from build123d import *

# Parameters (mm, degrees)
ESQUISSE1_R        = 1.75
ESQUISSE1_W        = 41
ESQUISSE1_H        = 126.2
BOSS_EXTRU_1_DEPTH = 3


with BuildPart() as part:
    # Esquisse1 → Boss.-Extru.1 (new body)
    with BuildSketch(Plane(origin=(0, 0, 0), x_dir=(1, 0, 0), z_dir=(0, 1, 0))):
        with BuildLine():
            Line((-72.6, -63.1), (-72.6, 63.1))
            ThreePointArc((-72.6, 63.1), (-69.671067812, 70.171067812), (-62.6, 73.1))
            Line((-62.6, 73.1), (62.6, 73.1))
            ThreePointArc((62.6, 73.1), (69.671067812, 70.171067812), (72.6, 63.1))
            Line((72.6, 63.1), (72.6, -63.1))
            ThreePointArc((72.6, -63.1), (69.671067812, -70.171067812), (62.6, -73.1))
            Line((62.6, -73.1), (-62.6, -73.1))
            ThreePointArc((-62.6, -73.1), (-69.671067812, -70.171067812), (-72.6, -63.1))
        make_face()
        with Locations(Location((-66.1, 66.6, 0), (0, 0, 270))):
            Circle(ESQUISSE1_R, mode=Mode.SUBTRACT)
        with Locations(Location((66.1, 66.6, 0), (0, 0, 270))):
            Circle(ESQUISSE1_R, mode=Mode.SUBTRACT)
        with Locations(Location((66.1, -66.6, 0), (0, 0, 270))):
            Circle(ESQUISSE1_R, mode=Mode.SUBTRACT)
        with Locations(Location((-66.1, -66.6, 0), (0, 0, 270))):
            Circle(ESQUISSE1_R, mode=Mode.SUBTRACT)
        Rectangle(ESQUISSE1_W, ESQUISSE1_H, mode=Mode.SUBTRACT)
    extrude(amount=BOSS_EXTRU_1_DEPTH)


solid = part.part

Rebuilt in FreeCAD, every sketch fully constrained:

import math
import FreeCAD as App
import Part
import Sketcher

V = App.Vector

doc = App.newDocument("Part")
body = doc.addObject("PartDesign::Body", "Body")

sketch1 = body.newObject("Sketcher::SketchObject", "Sketch")
sketch1.AttachmentSupport = (doc.getObject("XZ_Plane"), [""])
sketch1.MapMode = "FlatFace"
sketch1.addGeometry(Part.LineSegment(V(-72.6, -63.1, 0), V(-72.6, 63.1, 0)), False)
sketch1.addGeometry(Part.ArcOfCircle(Part.Circle(V(-62.6, 63.1, 0), V(0, 0, 1), 10), math.radians(90), math.radians(180)), False)
sketch1.addGeometry(Part.LineSegment(V(-62.6, 73.1, 0), V(62.6, 73.1, 0)), False)
sketch1.addGeometry(Part.ArcOfCircle(Part.Circle(V(62.6, 63.1, 0), V(0, 0, 1), 10), math.radians(0), math.radians(90)), False)
sketch1.addGeometry(Part.LineSegment(V(72.6, 63.1, 0), V(72.6, -63.1, 0)), False)
sketch1.addGeometry(Part.ArcOfCircle(Part.Circle(V(62.6, -63.1, 0), V(0, 0, 1), 10), math.radians(-90), math.radians(0)), False)
sketch1.addGeometry(Part.LineSegment(V(62.6, -73.1, 0), V(-62.6, -73.1, 0)), False)
sketch1.addGeometry(Part.ArcOfCircle(Part.Circle(V(-62.6, -63.1, 0), V(0, 0, 1), 10), math.radians(180), math.radians(270)), False)
sketch1.addGeometry(Part.Circle(V(66.1, 66.6, 0), V(0, 0, 1), 1.75), False)
sketch1.addGeometry(Part.Circle(V(-66.1, 66.6, 0), V(0, 0, 1), 1.75), False)
sketch1.addGeometry(Part.Circle(V(66.1, -66.6, 0), V(0, 0, 1), 1.75), False)
sketch1.addGeometry(Part.LineSegment(V(-20.5, 63.1, 0), V(-20.5, -63.1, 0)), False)
sketch1.addGeometry(Part.LineSegment(V(-20.5, -63.1, 0), V(20.5, -63.1, 0)), False)
sketch1.addGeometry(Part.LineSegment(V(20.5, -63.1, 0), V(20.5, 63.1, 0)), False)
sketch1.addGeometry(Part.LineSegment(V(20.5, 63.1, 0), V(-20.5, 63.1, 0)), False)
sketch1.addGeometry(Part.Circle(V(-66.1, -66.6, 0), V(0, 0, 1), 1.75), False)
sketch1.addConstraint(Sketcher.Constraint("Tangent", 0, 2, 1, 2))
sketch1.addConstraint(Sketcher.Constraint("Tangent", 1, 1, 2, 1))
sketch1.addConstraint(Sketcher.Constraint("Tangent", 2, 2, 3, 2))
sketch1.addConstraint(Sketcher.Constraint("Tangent", 3, 1, 4, 1))
sketch1.addConstraint(Sketcher.Constraint("Tangent", 4, 2, 5, 2))
sketch1.addConstraint(Sketcher.Constraint("Tangent", 5, 1, 6, 1))
sketch1.addConstraint(Sketcher.Constraint("Tangent", 6, 2, 7, 2))
sketch1.addConstraint(Sketcher.Constraint("Tangent", 7, 1, 0, 1))
sketch1.addConstraint(Sketcher.Constraint("Coincident", 11, 2, 12, 1))
sketch1.addConstraint(Sketcher.Constraint("Coincident", 12, 2, 13, 1))
sketch1.addConstraint(Sketcher.Constraint("Coincident", 13, 2, 14, 1))
sketch1.addConstraint(Sketcher.Constraint("Coincident", 14, 2, 11, 1))
sketch1.addConstraint(Sketcher.Constraint("Vertical", 0))
sketch1.addConstraint(Sketcher.Constraint("Horizontal", 2))
sketch1.addConstraint(Sketcher.Constraint("Vertical", 4))
sketch1.addConstraint(Sketcher.Constraint("Horizontal", 6))
sketch1.addConstraint(Sketcher.Constraint("Vertical", 11))
sketch1.addConstraint(Sketcher.Constraint("Horizontal", 12))
sketch1.addConstraint(Sketcher.Constraint("Vertical", 13))
sketch1.addConstraint(Sketcher.Constraint("Horizontal", 14))
sketch1.addConstraint(Sketcher.Constraint("Equal", 1, 3))
sketch1.addConstraint(Sketcher.Constraint("Equal", 3, 5))
sketch1.addConstraint(Sketcher.Constraint("Equal", 5, 7))
sketch1.addConstraint(Sketcher.Constraint("Equal", 8, 9))
sketch1.addConstraint(Sketcher.Constraint("Equal", 9, 10))
sketch1.addConstraint(Sketcher.Constraint("Equal", 10, 15))
sketch1.addConstraint(Sketcher.Constraint("Symmetric", 1, 3, 5, 3, -1, 1))
sketch1.addConstraint(Sketcher.Constraint("Symmetric", 9, 3, 10, 3, -1, 1))
sketch1.addConstraint(Sketcher.Constraint("Symmetric", 8, 3, 15, 3, -1, 1))
sketch1.addConstraint(Sketcher.Constraint("Symmetric", 11, 2, 13, 2, -1, 1))
sketch1.addConstraint(Sketcher.Constraint("Symmetric", 8, 3, 9, 3, -2))
sketch1.addConstraint(Sketcher.Constraint("Horizontal", 7, 1, 11, 2))
sketch1.addConstraint(Sketcher.Constraint("Radius", 1, 10.0))
sketch1.addConstraint(Sketcher.Constraint("Diameter", 8, 3.5))
sketch1.addConstraint(Sketcher.Constraint("DistanceX", 12, 1, 12, 2, 41.0))
sketch1.addConstraint(Sketcher.Constraint("DistanceX", 2, 1, 2, 2, 125.2))
sketch1.addConstraint(Sketcher.Constraint("DistanceY", 0, 1, 0, 2, 126.2))
sketch1.addConstraint(Sketcher.Constraint("DistanceX", -1, 1, 8, 3, 66.1))
sketch1.addConstraint(Sketcher.Constraint("DistanceY", -1, 1, 8, 3, 66.6))
pad1 = body.newObject("PartDesign::Pad", "Pad")
pad1.Profile = sketch1
pad1.Length = 3
pad1.Reversed = True

doc.recompute()
